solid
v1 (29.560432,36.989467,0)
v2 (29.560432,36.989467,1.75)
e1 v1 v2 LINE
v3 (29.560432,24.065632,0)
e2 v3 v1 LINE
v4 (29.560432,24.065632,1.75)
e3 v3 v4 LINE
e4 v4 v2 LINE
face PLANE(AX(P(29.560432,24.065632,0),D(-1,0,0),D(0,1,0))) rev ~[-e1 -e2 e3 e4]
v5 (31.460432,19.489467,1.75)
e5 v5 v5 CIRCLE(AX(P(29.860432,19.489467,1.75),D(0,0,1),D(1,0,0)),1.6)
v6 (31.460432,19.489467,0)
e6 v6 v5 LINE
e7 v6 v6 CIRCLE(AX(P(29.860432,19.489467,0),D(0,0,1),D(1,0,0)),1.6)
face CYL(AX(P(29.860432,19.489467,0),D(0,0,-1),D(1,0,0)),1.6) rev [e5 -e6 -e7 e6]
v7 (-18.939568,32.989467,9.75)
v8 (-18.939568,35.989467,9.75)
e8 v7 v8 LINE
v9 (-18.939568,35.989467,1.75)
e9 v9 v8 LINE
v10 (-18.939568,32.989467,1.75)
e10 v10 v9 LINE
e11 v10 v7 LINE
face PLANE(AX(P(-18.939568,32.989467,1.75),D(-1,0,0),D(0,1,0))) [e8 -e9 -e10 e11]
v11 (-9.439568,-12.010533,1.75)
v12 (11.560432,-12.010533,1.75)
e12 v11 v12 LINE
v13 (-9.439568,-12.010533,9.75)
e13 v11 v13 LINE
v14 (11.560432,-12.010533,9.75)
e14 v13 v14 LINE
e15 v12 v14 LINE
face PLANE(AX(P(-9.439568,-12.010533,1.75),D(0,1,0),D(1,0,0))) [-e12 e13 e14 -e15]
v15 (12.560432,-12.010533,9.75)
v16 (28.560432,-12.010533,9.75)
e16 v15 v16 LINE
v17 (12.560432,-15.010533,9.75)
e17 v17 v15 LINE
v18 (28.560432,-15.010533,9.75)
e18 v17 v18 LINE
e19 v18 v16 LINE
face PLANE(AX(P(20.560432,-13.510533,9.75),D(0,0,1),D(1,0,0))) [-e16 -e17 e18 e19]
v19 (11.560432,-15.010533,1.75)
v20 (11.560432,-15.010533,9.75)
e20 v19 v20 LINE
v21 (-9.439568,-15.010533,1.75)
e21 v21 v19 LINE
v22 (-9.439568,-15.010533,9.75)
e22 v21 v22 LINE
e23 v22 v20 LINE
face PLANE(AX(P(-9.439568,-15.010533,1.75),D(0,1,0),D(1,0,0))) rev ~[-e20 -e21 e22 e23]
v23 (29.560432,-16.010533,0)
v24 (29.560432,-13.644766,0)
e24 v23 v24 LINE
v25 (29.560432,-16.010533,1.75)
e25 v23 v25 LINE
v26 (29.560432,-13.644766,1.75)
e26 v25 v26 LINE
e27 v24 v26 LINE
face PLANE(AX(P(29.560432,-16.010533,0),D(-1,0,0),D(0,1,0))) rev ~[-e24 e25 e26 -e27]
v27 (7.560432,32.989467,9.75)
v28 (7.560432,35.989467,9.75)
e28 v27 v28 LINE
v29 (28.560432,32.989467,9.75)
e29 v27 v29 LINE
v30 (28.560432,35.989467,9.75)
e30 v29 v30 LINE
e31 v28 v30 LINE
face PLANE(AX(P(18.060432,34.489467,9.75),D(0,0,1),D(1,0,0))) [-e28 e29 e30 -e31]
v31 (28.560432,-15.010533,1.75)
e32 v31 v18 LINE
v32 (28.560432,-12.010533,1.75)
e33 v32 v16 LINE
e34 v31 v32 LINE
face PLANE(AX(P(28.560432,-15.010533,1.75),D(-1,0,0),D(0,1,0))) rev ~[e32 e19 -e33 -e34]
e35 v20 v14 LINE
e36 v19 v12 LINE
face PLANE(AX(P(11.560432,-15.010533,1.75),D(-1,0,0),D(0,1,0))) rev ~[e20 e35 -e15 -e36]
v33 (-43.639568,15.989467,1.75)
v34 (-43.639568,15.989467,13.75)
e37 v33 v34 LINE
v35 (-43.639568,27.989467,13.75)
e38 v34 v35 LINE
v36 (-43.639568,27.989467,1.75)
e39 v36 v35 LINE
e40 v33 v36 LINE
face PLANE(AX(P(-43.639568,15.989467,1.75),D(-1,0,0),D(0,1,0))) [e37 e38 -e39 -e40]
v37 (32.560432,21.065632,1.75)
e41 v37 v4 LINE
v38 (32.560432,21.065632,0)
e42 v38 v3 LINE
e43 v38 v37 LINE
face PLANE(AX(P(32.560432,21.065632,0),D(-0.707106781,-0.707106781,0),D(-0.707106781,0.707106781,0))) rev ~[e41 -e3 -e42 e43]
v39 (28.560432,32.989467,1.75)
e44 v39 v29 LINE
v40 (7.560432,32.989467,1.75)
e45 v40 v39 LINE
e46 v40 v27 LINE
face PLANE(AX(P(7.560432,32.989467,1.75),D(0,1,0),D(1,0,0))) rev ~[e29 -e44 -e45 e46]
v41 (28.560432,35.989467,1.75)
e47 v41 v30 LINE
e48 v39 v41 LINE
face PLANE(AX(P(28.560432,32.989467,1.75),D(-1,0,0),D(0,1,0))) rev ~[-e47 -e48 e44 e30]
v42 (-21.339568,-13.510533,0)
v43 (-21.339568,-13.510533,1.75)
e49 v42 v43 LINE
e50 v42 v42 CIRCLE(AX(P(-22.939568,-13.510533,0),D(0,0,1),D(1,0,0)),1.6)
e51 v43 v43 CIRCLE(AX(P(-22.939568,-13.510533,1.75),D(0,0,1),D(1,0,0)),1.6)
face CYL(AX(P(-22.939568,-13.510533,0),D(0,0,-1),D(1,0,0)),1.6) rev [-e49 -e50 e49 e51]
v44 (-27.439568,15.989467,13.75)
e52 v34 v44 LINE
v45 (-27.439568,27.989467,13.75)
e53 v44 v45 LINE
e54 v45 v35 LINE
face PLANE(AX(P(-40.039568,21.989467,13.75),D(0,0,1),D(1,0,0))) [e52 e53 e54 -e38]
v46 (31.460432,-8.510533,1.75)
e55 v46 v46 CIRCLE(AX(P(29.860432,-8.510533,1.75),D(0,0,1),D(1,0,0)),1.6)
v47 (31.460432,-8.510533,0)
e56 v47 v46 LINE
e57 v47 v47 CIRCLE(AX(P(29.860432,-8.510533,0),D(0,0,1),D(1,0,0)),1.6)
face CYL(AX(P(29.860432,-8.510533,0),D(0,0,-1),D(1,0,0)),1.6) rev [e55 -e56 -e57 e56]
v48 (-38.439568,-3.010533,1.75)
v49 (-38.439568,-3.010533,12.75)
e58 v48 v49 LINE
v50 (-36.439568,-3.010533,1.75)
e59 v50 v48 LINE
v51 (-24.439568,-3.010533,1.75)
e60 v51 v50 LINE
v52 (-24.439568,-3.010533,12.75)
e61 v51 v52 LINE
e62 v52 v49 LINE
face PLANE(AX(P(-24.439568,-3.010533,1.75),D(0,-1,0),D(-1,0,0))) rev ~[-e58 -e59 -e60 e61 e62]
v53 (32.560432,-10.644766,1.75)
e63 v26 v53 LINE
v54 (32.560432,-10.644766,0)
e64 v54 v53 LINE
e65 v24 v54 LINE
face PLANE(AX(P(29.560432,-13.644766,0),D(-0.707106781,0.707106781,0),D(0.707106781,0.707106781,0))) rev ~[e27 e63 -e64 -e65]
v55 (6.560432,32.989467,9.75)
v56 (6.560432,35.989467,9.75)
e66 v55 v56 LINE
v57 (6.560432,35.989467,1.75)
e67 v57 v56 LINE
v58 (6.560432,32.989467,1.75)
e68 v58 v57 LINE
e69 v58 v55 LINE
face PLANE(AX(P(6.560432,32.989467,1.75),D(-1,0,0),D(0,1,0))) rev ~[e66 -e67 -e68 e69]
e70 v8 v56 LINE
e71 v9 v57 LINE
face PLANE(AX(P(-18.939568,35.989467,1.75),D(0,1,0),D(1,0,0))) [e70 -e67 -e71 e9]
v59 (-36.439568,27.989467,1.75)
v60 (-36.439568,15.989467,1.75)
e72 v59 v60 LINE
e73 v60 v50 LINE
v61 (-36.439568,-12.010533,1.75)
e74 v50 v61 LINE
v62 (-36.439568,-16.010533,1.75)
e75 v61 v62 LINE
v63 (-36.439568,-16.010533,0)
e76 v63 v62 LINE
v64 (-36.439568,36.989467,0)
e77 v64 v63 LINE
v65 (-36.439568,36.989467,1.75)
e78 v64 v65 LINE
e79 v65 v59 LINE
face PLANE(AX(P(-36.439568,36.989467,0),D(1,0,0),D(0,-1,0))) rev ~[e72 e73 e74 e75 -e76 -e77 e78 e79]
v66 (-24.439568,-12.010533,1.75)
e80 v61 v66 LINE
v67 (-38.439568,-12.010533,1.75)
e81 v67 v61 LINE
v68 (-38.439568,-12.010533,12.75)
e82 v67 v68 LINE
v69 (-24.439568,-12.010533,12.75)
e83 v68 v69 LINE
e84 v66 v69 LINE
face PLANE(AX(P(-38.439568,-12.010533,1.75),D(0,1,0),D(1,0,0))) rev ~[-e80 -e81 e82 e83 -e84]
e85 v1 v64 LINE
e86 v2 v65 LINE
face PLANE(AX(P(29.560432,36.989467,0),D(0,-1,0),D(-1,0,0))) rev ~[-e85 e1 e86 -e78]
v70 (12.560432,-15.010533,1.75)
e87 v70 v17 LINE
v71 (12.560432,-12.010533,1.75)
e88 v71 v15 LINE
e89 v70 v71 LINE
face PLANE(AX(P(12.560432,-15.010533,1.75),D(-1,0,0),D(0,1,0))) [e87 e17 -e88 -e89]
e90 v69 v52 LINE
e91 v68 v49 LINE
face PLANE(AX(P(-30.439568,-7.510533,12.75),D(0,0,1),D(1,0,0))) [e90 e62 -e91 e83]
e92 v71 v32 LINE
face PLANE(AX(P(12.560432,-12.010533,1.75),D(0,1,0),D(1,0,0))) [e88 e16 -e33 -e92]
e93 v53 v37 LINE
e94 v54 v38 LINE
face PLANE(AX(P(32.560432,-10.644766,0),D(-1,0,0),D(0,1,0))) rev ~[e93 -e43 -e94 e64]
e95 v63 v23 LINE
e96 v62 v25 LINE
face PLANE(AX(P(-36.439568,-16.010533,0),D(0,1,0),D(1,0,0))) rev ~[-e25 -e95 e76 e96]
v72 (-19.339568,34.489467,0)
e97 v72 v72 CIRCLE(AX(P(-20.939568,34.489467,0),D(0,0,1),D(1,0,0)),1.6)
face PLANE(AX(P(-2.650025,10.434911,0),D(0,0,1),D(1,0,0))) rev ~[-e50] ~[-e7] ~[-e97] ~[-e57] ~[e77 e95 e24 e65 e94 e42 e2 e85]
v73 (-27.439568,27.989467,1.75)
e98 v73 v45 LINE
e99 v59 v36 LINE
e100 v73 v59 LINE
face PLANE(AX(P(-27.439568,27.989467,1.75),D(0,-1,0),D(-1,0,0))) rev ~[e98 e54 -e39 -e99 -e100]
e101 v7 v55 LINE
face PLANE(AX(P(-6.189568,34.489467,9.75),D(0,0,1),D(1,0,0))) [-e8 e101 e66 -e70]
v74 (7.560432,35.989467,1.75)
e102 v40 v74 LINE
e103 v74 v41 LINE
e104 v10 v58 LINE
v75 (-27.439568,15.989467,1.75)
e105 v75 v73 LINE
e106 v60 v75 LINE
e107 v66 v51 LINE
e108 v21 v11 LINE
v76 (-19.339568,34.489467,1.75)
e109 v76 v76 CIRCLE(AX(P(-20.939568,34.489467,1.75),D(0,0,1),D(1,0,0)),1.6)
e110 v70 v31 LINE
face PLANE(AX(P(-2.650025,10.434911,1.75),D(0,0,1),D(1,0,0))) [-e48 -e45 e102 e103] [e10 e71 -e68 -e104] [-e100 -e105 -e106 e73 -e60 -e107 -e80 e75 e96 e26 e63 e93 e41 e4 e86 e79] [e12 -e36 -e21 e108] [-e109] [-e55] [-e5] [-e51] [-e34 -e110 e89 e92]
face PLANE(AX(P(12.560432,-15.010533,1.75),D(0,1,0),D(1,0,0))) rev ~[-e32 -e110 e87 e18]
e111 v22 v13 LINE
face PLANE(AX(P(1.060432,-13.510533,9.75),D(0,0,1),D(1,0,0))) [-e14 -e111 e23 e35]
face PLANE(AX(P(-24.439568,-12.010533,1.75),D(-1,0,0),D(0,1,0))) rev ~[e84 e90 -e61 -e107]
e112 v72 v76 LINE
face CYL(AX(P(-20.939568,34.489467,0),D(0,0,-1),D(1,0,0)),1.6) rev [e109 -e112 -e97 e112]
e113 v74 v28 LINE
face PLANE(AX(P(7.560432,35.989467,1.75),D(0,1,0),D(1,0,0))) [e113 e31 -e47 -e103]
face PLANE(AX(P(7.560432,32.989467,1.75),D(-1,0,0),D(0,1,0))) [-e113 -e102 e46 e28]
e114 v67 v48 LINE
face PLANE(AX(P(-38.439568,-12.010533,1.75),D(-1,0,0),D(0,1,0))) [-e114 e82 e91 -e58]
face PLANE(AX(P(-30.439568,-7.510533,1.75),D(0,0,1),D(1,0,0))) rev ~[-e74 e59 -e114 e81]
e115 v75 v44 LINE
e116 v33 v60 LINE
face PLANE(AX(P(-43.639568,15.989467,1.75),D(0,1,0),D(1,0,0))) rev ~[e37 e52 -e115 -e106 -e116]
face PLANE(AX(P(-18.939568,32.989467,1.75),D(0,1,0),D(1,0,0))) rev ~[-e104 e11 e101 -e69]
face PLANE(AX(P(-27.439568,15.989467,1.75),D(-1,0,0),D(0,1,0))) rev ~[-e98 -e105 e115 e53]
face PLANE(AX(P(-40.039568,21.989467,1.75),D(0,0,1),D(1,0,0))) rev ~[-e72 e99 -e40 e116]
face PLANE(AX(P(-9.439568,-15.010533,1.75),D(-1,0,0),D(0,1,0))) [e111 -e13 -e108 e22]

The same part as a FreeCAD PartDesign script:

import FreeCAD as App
import Part
import Sketcher

V = App.Vector

doc = App.newDocument("Part")
body = doc.addObject("PartDesign::Body", "Body")

sketch1 = body.newObject("Sketcher::SketchObject", "Sketch")
sketch1.AttachmentSupport = (doc.getObject("XY_Plane"), [""])
sketch1.MapMode = "FlatFace"
sketch1.addGeometry(Part.LineSegment(V(29.6, 37, 0), V(-36.4, 37, 0)), False)
sketch1.addGeometry(Part.LineSegment(V(-36.4, 37, 0), V(-36.4, -16, 0)), False)
sketch1.addGeometry(Part.LineSegment(V(-36.4, -16, 0), V(29.6, -16, 0)), False)
sketch1.addGeometry(Part.LineSegment(V(29.6, -16, 0), V(29.6, -13.6, 0)), False)
sketch1.addGeometry(Part.LineSegment(V(29.6, -13.6, 0), V(32.6, -10.6, 0)), False)
sketch1.addGeometry(Part.LineSegment(V(32.6, -10.6, 0), V(32.6, 21.1, 0)), False)
sketch1.addGeometry(Part.LineSegment(V(32.6, 21.1, 0), V(29.6, 24.1, 0)), False)
sketch1.addGeometry(Part.LineSegment(V(29.6, 24.1, 0), V(29.6, 37, 0)), False)
sketch1.addGeometry(Part.Circle(V(-22.9, -13.5, 0), V(0, 0, 1), 1.6), False)
sketch1.addGeometry(Part.Circle(V(29.9, -8.5, 0), V(0, 0, 1), 1.6), False)
sketch1.addGeometry(Part.Circle(V(-20.9, 34.5, 0), V(0, 0, 1), 1.6), False)
sketch1.addGeometry(Part.Circle(V(29.9, 19.5, 0), V(0, 0, 1), 1.6), False)
sketch1.addConstraint(Sketcher.Constraint("Coincident", 0, 2, 1, 1))
sketch1.addConstraint(Sketcher.Constraint("Coincident", 1, 2, 2, 1))
sketch1.addConstraint(Sketcher.Constraint("Coincident", 2, 2, 3, 1))
sketch1.addConstraint(Sketcher.Constraint("Coincident", 3, 2, 4, 1))
sketch1.addConstraint(Sketcher.Constraint("Coincident", 4, 2, 5, 1))
sketch1.addConstraint(Sketcher.Constraint("Coincident", 5, 2, 6, 1))
sketch1.addConstraint(Sketcher.Constraint("Coincident", 6, 2, 7, 1))
sketch1.addConstraint(Sketcher.Constraint("Coincident", 7, 2, 0, 1))
sketch1.addConstraint(Sketcher.Constraint("Horizontal", 0))
sketch1.addConstraint(Sketcher.Constraint("Vertical", 1))
sketch1.addConstraint(Sketcher.Constraint("Horizontal", 2))
sketch1.addConstraint(Sketcher.Constraint("Vertical", 3))
sketch1.addConstraint(Sketcher.Constraint("Vertical", 5))
sketch1.addConstraint(Sketcher.Constraint("Vertical", 7))
sketch1.addConstraint(Sketcher.Constraint("Equal", 8, 9))
sketch1.addConstraint(Sketcher.Constraint("Equal", 9, 10))
sketch1.addConstraint(Sketcher.Constraint("Equal", 10, 11))
sketch1.addConstraint(Sketcher.Constraint("Perpendicular", 4, 6))
sketch1.addConstraint(Sketcher.Constraint("Vertical", 9, 3, 11, 3))
sketch1.addConstraint(Sketcher.Constraint("Vertical", 3, 2, 6, 2))
sketch1.addConstraint(Sketcher.Constraint("Equal", 4, 6))
sketch1.addConstraint(Sketcher.Constraint("Diameter", 8, 3.2))
sketch1.addConstraint(Sketcher.Constraint("DistanceX", 0, 2, 0, 1, 66.0))
sketch1.addConstraint(Sketcher.Constraint("DistanceY", 1, 2, 1, 1, 53.0))
sketch1.addConstraint(Sketcher.Constraint("DistanceY", 8, 3, 9, 3, 5.0))
sketch1.addConstraint(Sketcher.Constraint("DistanceX", 8, 3, 10, 3, 2.0))
sketch1.addConstraint(Sketcher.Constraint("DistanceY", 8, 3, 10, 3, 48.0))
sketch1.addConstraint(Sketcher.Constraint("DistanceY", 9, 3, 11, 3, 28.0))
sketch1.addConstraint(Sketcher.Constraint("DistanceX", 3, 2, 4, 2, 3.0))
sketch1.addConstraint(Sketcher.Constraint("DistanceX", 8, 3, 9, 3, 52.8))
sketch1.addConstraint(Sketcher.Constraint("DistanceX", 0, 2, 10, 3, 15.5))
sketch1.addConstraint(Sketcher.Constraint("DistanceY", 10, 3, 0, 2, 2.5))
sketch1.addConstraint(Sketcher.Constraint("DistanceY", 5, 1, 5, 2, 31.710398))
sketch1.addConstraint(Sketcher.Constraint("DistanceY", 3, 1, 3, 2, 2.365767))
sketch1.addConstraint(Sketcher.Constraint("DistanceX", 8, 3, -1, 1, 22.939568))
sketch1.addConstraint(Sketcher.Constraint("DistanceY", 8, 3, -1, 1, 13.510533))
pad1 = body.newObject("PartDesign::Pad", "Pad")
pad1.Profile = sketch1
pad1.Length = 1.75

sketch2 = body.newObject("Sketcher::SketchObject", "Sketch001")
sketch2.AttachmentSupport = (doc.getObject("XY_Plane"), [""])
sketch2.MapMode = "FlatFace"
sketch2.AttachmentOffset = App.Placement(V(0, 0, 1.75), App.Rotation())
sketch2.addGeometry(Part.LineSegment(V(-44, 28, 0), V(-44, 16, 0)), False)
sketch2.addGeometry(Part.LineSegment(V(-44, 16, 0), V(-27, 16, 0)), False)
sketch2.addGeometry(Part.LineSegment(V(-27, 16, 0), V(-27, 28, 0)), False)
sketch2.addGeometry(Part.LineSegment(V(-27, 28, 0), V(-44, 28, 0)), False)
sketch2.addConstraint(Sketcher.Constraint("Coincident", 0, 2, 1, 1))
sketch2.addConstraint(Sketcher.Constraint("Coincident", 1, 2, 2, 1))
sketch2.addConstraint(Sketcher.Constraint("Coincident", 2, 2, 3, 1))
sketch2.addConstraint(Sketcher.Constraint("Coincident", 3, 2, 0, 1))
sketch2.addConstraint(Sketcher.Constraint("Vertical", 0))
sketch2.addConstraint(Sketcher.Constraint("Horizontal", 1))
sketch2.addConstraint(Sketcher.Constraint("Vertical", 2))
sketch2.addConstraint(Sketcher.Constraint("Horizontal", 3))
sketch2.addConstraint(Sketcher.Constraint("DistanceY", 0, 2, 0, 1, 12.0))
sketch2.addConstraint(Sketcher.Constraint("DistanceX", 1, 1, 1, 2, 16.2))
sketch2.addConstraint(Sketcher.Constraint("DistanceX", 1, 2, -1, 1, 27.439568))
sketch2.addConstraint(Sketcher.Constraint("DistanceY", -1, 1, 0, 2, 15.989467))
pad2 = body.newObject("PartDesign::Pad", "Pad001")
pad2.Profile = sketch2
pad2.Length = 12

sketch3 = body.newObject("Sketcher::SketchObject", "Sketch002")
sketch3.AttachmentSupport = (doc.getObject("XY_Plane"), [""])
sketch3.MapMode = "FlatFace"
sketch3.AttachmentOffset = App.Placement(V(0, 0, 1.75), App.Rotation())
sketch3.addGeometry(Part.LineSegment(V(-24, -12, 0), V(-24, -3, 0)), False)
sketch3.addGeometry(Part.LineSegment(V(-24, -3, 0), V(-38, -3, 0)), False)
sketch3.addGeometry(Part.LineSegment(V(-38, -3, 0), V(-38, -12, 0)), False)
sketch3.addGeometry(Part.LineSegment(V(-38, -12, 0), V(-24, -12, 0)), False)
sketch3.addConstraint(Sketcher.Constraint("Coincident", 0, 2, 1, 1))
sketch3.addConstraint(Sketcher.Constraint("Coincident", 1, 2, 2, 1))
sketch3.addConstraint(Sketcher.Constraint("Coincident", 2, 2, 3, 1))
sketch3.addConstraint(Sketcher.Constraint("Coincident", 3, 2, 0, 1))
sketch3.addConstraint(Sketcher.Constraint("Vertical", 0))
sketch3.addConstraint(Sketcher.Constraint("Horizontal", 1))
sketch3.addConstraint(Sketcher.Constraint("Vertical", 2))
sketch3.addConstraint(Sketcher.Constraint("Horizontal", 3))
sketch3.addConstraint(Sketcher.Constraint("DistanceX", 1, 2, 1, 1, 14.0))
sketch3.addConstraint(Sketcher.Constraint("DistanceY", 0, 1, 0, 2, 9.0))
sketch3.addConstraint(Sketcher.Constraint("DistanceX", 0, 2, -1, 1, 24.439568))
sketch3.addConstraint(Sketcher.Constraint("DistanceY", 0, 2, -1, 1, 3.010533))
pad3 = body.newObject("PartDesign::Pad", "Pad002")
pad3.Profile = sketch3
pad3.Length = 11

sketch4 = body.newObject("Sketcher::SketchObject", "Sketch003")
sketch4.AttachmentSupport = (doc.getObject("XY_Plane"), [""])
sketch4.MapMode = "FlatFace"
sketch4.AttachmentOffset = App.Placement(V(0, 0, 1.75), App.Rotation())
sketch4.addGeometry(Part.LineSegment(V(-9.4, -12, 0), V(-9.4, -15, 0)), False)
sketch4.addGeometry(Part.LineSegment(V(-9.4, -15, 0), V(11.6, -15, 0)), False)
sketch4.addGeometry(Part.LineSegment(V(11.6, -15, 0), V(11.6, -12, 0)), False)
sketch4.addGeometry(Part.LineSegment(V(11.6, -12, 0), V(-9.4, -12, 0)), False)
sketch4.addGeometry(Part.LineSegment(V(12.6, -12, 0), V(12.6, -15, 0)), False)
sketch4.addGeometry(Part.LineSegment(V(12.6, -15, 0), V(28.6, -15, 0)), False)
sketch4.addGeometry(Part.LineSegment(V(28.6, -15, 0), V(28.6, -12, 0)), False)
sketch4.addGeometry(Part.LineSegment(V(28.6, -12, 0), V(12.6, -12, 0)), False)
sketch4.addGeometry(Part.LineSegment(V(7.6, 36, 0), V(7.6, 33, 0)), False)
sketch4.addGeometry(Part.LineSegment(V(7.6, 33, 0), V(28.6, 33, 0)), False)
sketch4.addGeometry(Part.LineSegment(V(28.6, 33, 0), V(28.6, 36, 0)), False)
sketch4.addGeometry(Part.LineSegment(V(28.6, 36, 0), V(7.6, 36, 0)), False)
sketch4.addGeometry(Part.LineSegment(V(-18.9, 36, 0), V(-18.9, 33, 0)), False)
sketch4.addGeometry(Part.LineSegment(V(-18.9, 33, 0), V(6.6, 33, 0)), False)
sketch4.addGeometry(Part.LineSegment(V(6.6, 33, 0), V(6.6, 36, 0)), False)
sketch4.addGeometry(Part.LineSegment(V(6.6, 36, 0), V(-18.9, 36, 0)), False)
sketch4.addConstraint(Sketcher.Constraint("Coincident", 0, 2, 1, 1))
sketch4.addConstraint(Sketcher.Constraint("Coincident", 1, 2, 2, 1))
sketch4.addConstraint(Sketcher.Constraint("Coincident", 2, 2, 3, 1))
sketch4.addConstraint(Sketcher.Constraint("Coincident", 3, 2, 0, 1))
sketch4.addConstraint(Sketcher.Constraint("Coincident", 4, 2, 5, 1))
sketch4.addConstraint(Sketcher.Constraint("Coincident", 5, 2, 6, 1))
sketch4.addConstraint(Sketcher.Constraint("Coincident", 6, 2, 7, 1))
sketch4.addConstraint(Sketcher.Constraint("Coincident", 7, 2, 4, 1))
sketch4.addConstraint(Sketcher.Constraint("Coincident", 8, 2, 9, 1))
sketch4.addConstraint(Sketcher.Constraint("Coincident", 9, 2, 10, 1))
sketch4.addConstraint(Sketcher.Constraint("Coincident", 10, 2, 11, 1))
sketch4.addConstraint(Sketcher.Constraint("Coincident", 11, 2, 8, 1))
sketch4.addConstraint(Sketcher.Constraint("Coincident", 12, 2, 13, 1))
sketch4.addConstraint(Sketcher.Constraint("Coincident", 13, 2, 14, 1))
sketch4.addConstraint(Sketcher.Constraint("Coincident", 14, 2, 15, 1))
sketch4.addConstraint(Sketcher.Constraint("Coincident", 15, 2, 12, 1))
sketch4.addConstraint(Sketcher.Constraint("Vertical", 0))
sketch4.addConstraint(Sketcher.Constraint("Horizontal", 1))
sketch4.addConstraint(Sketcher.Constraint("Vertical", 2))
sketch4.addConstraint(Sketcher.Constraint("Horizontal", 3))
sketch4.addConstraint(Sketcher.Constraint("Vertical", 4))
sketch4.addConstraint(Sketcher.Constraint("Horizontal", 5))
sketch4.addConstraint(Sketcher.Constraint("Vertical", 6))
sketch4.addConstraint(Sketcher.Constraint("Horizontal", 7))
sketch4.addConstraint(Sketcher.Constraint("Vertical", 8))
sketch4.addConstraint(Sketcher.Constraint("Horizontal", 9))
sketch4.addConstraint(Sketcher.Constraint("Vertical", 10))
sketch4.addConstraint(Sketcher.Constraint("Horizontal", 11))
sketch4.addConstraint(Sketcher.Constraint("Vertical", 12))
sketch4.addConstraint(Sketcher.Constraint("Horizontal", 13))
sketch4.addConstraint(Sketcher.Constraint("Vertical", 14))
sketch4.addConstraint(Sketcher.Constraint("Horizontal", 15))
sketch4.addConstraint(Sketcher.Constraint("Horizontal", 1, 2, 4, 2))
sketch4.addConstraint(Sketcher.Constraint("Horizontal", 3, 2, 6, 2))
sketch4.addConstraint(Sketcher.Constraint("Horizontal", 9, 2, 12, 2))
sketch4.addConstraint(Sketcher.Constraint("Horizontal", 11, 2, 14, 2))
sketch4.addConstraint(Sketcher.Constraint("Vertical", 6, 2, 9, 2))
sketch4.addConstraint(Sketcher.Constraint("Equal", 3, 9))
sketch4.addConstraint(Sketcher.Constraint("Equal", 6, 8))
sketch4.addConstraint(Sketcher.Constraint("DistanceX", 1, 1, 1, 2, 21.0))
sketch4.addConstraint(Sketcher.Constraint("DistanceX", 5, 1, 5, 2, 16.0))
sketch4.addConstraint(Sketcher.Constraint("DistanceY", 0, 2, 0, 1, 3.0))
sketch4.addConstraint(Sketcher.Constraint("DistanceX", 13, 1, 13, 2, 25.5))
sketch4.addConstraint(Sketcher.Constraint("DistanceX", 1, 2, 4, 2, 1.0))
sketch4.addConstraint(Sketcher.Constraint("DistanceY", 2, 2, 8, 2, 45.0))
sketch4.addConstraint(Sketcher.Constraint("DistanceX", 13, 2, 8, 2, 1.0))
sketch4.addConstraint(Sketcher.Constraint("DistanceX", -1, 1, 5, 2, 28.560432))
sketch4.addConstraint(Sketcher.Constraint("DistanceY", 0, 2, -1, 1, 15.010533))
pad4 = body.newObject("PartDesign::Pad", "Pad003")
pad4.Profile = sketch4
pad4.Length = 8

doc.recompute()
